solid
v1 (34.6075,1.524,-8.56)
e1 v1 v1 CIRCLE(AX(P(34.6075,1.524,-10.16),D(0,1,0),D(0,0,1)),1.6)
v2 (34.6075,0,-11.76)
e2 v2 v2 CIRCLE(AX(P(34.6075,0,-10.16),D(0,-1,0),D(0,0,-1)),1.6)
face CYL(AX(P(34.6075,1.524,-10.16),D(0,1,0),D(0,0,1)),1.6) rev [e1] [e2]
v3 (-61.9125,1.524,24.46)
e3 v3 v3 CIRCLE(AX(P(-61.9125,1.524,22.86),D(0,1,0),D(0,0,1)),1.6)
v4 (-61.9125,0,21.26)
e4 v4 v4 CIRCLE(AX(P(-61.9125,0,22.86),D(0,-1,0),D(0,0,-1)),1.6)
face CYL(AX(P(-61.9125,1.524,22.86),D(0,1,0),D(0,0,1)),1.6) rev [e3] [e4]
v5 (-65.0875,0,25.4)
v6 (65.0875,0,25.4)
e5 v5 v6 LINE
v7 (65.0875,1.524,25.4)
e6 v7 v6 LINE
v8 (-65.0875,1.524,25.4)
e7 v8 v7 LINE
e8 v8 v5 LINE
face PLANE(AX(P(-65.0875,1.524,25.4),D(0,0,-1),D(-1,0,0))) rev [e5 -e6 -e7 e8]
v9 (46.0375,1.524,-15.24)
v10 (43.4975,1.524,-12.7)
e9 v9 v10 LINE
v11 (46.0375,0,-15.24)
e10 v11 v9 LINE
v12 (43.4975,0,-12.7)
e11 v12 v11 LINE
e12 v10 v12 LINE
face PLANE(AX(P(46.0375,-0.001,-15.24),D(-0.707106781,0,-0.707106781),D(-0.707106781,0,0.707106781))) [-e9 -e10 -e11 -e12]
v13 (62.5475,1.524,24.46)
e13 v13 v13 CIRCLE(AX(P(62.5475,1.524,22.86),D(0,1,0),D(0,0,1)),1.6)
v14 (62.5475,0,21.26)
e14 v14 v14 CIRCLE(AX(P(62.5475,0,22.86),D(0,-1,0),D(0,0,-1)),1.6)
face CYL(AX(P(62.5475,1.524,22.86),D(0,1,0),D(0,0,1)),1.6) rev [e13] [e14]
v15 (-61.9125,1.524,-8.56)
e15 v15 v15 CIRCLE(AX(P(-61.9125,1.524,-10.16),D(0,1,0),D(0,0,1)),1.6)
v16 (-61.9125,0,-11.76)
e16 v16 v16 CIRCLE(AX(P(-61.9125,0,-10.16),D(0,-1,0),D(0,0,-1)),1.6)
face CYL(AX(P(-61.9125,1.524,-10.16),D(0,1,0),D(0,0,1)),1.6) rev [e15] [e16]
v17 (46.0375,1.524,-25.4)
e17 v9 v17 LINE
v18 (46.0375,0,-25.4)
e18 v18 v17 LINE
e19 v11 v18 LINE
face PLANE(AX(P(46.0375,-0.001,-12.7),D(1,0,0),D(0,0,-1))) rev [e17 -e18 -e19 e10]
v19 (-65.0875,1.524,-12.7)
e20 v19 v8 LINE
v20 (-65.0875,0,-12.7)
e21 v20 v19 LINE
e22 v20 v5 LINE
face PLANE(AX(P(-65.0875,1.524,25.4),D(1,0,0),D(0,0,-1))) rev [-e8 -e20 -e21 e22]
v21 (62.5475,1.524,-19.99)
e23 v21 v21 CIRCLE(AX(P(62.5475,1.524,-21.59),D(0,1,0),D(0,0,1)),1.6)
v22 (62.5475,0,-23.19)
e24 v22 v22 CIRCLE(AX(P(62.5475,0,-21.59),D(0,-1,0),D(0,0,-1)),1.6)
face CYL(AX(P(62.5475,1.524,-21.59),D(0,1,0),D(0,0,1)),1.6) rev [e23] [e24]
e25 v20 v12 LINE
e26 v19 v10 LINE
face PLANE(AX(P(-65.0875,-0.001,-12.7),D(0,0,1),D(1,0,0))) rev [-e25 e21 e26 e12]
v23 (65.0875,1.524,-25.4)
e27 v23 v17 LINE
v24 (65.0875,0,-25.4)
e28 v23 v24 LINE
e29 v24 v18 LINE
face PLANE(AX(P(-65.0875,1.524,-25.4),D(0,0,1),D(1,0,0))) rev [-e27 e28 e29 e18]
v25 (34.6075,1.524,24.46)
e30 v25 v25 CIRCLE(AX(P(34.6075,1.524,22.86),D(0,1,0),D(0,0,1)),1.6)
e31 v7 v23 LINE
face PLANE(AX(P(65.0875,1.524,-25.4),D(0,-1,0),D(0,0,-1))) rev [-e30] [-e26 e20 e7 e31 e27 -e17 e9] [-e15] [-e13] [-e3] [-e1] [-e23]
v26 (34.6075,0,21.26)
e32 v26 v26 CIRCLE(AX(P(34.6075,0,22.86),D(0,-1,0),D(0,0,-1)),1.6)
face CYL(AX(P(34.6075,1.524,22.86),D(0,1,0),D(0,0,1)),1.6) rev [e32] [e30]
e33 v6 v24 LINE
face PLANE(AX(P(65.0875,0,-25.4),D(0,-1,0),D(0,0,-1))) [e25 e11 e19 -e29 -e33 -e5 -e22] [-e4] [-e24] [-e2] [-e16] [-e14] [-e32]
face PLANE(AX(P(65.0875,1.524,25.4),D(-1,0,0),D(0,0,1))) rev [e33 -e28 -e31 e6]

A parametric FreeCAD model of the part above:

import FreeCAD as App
import Part
import Sketcher
from FreeCAD import Vector
Q = App.Units.Quantity


def edges_at(feature, points):
    """Names of the edges that pass closest to the given points."""
    edges = feature.Shape.Edges
    near = lambda p: min(range(len(edges)), key=lambda i: edges[i].distToShape(Part.Vertex(*p))[0])
    return sorted({f"Edge{near(p) + 1}" for p in points})


def add_polygon(sketch, points):
    """Adds a closed chain of lines whose ends are joined by coincident constraints."""
    first, n = sketch.GeometryCount, len(points)
    for a, b in zip(points, points[1:] + points[:1]):
        sketch.addGeometry(Part.LineSegment(App.Vector(*a, 0), App.Vector(*b, 0)), False)
    for i in range(n):
        sketch.addConstraint(Sketcher.Constraint("Coincident", first + i, 2, first + (i + 1) % n, 1))

doc = App.newDocument("Part")
params = doc.addObject("Spreadsheet::Sheet", "Params")
for row, (alias, value) in enumerate([
    ("sketch1_height", "2 in"),
    ("sketch1_width", "5.125 in"),
    ("pad1_length", "0.06 in"),
    ("sketch2_height", "0.5 in"),
    ("sketch2_width", "4.375 in"),
    ("chamfer_size", "0.1 in"),
    ("hole_diameter", "3.2 mm"),
], start=1):
    params.set(f"A{row}", alias)
    params.set(f"B{row}", "=" + value)
    params.setAlias(f"B{row}", alias)

body = doc.addObject("PartDesign::Body", "Body")

# Sketch on XZ plane
sketch1 = body.newObject("Sketcher::SketchObject", "Sketch")
sketch1.AttachmentSupport = (doc.getObject("XZ_Plane"), [""])
sketch1.MapMode = "FlatFace"
add_polygon(sketch1, [(-65.0875, -25.4), (-65.0875, 25.4), (65.0875, 25.4), (65.0875, -25.4)])  # lines 0-3
sketch1.addConstraint([
    Sketcher.Constraint("Vertical", 0),
    Sketcher.Constraint("Horizontal", 1),
    Sketcher.Constraint("Vertical", 2),
    Sketcher.Constraint("Horizontal", 3),
    Sketcher.Constraint("Symmetric", 0, 2, 2, 2, -1, 1),
    Sketcher.Constraint("DistanceY", 0, 1, 0, 2, Q("2 in")),
    Sketcher.Constraint("DistanceX", 1, 1, 1, 2, Q("5.125 in")),
])
sketch1.setExpression("Constraints[9]", "Params.sketch1_height")
sketch1.setExpression("Constraints[10]", "Params.sketch1_width")
pad1 = body.newObject("PartDesign::Pad", "Pad")
pad1.Profile = sketch1
pad1.setExpression("Length", "Params.pad1_length")
pad1.Reversed = True

# Sketch on XZ plane
sketch2 = body.newObject("Sketcher::SketchObject", "Sketch001")
sketch2.AttachmentSupport = (doc.getObject("XZ_Plane"), [""])
sketch2.MapMode = "FlatFace"
sketch2.AttachmentOffset = App.Placement(Vector(0, 0, -0.06 * 25.4), App.Rotation())
add_polygon(sketch2, [(-65.0875, -25.4), (-65.0875, -12.7), (46.0375, -12.7), (46.0375, -25.4)])  # lines 0-3
sketch2.addConstraint([
    Sketcher.Constraint("Vertical", 0),
    Sketcher.Constraint("Horizontal", 1),
    Sketcher.Constraint("Vertical", 2),
    Sketcher.Constraint("Horizontal", 3),
    Sketcher.Constraint("DistanceY", 0, 1, 0, 2, Q("0.5 in")),
    Sketcher.Constraint("DistanceY", 2, 2, -1, 1, Q("1 in")),
    Sketcher.Constraint("DistanceX", 1, 1, 1, 2, Q("4.375 in")),
    Sketcher.Constraint("DistanceX", 0, 2, -1, 1, Q("2.5625 in")),
])
sketch2.setExpression("Constraints[8]", "Params.sketch2_height")
sketch2.setExpression("Constraints[10]", "Params.sketch2_width")
pocket1 = body.newObject("PartDesign::Pocket", "Pocket")
pocket1.Profile = sketch2
pocket1.Type = "UpToFirst"
pocket1.Reversed = True
doc.recompute()

chamfer = body.newObject("PartDesign::Chamfer", "Chamfer")
chamfer.Base = (pocket1, edges_at(pocket1, [(46.038, 0.762, -12.7)]))
chamfer.setExpression("Size", "Params.chamfer_size")

# Sketch on XZ plane
sketch3 = body.newObject("Sketcher::SketchObject", "Sketch002")
sketch3.AttachmentSupport = (doc.getObject("XZ_Plane"), [""])
sketch3.MapMode = "FlatFace"
sketch3.AttachmentOffset = App.Placement(Vector(0, 0, -0.06 * 25.4), App.Rotation())
sketch3.addGeometry([
    Part.Circle(Vector(62.5475, 22.86, 0), Vector(0, 0, 1), 1.6),  # 0
    Part.Circle(Vector(62.5475, -21.59, 0), Vector(0, 0, 1), 1.6),  # 1
    Part.Circle(Vector(34.6075, 22.86, 0), Vector(0, 0, 1), 1.6),  # 2
    Part.Circle(Vector(34.6075, -10.16, 0), Vector(0, 0, 1), 1.6),  # 3
    Part.Circle(Vector(-61.9125, 22.86, 0), Vector(0, 0, 1), 1.6),  # 4
    Part.Circle(Vector(-61.9125, -10.16, 0), Vector(0, 0, 1), 1.6),  # 5
], False)
sketch3.addConstraint([
    Sketcher.Constraint("Equal", 0, 1),
    Sketcher.Constraint("Equal", 1, 2),
    Sketcher.Constraint("Equal", 2, 3),
    Sketcher.Constraint("Equal", 3, 4),
    Sketcher.Constraint("Equal", 4, 5),
    Sketcher.Constraint("Horizontal", 0, 3, 2, 3),
    Sketcher.Constraint("Horizontal", 2, 3, 4, 3),
    Sketcher.Constraint("Horizontal", 3, 3, 5, 3),
    Sketcher.Constraint("Vertical", 0, 3, 1, 3),
    Sketcher.Constraint("Vertical", 2, 3, 3, 3),
    Sketcher.Constraint("Vertical", 4, 3, 5, 3),
    Sketcher.Constraint("DistanceY", -1, 1, 0, 3, Q("0.9 in")),
    Sketcher.Constraint("DistanceY", 3, 3, -1, 1, Q("0.4 in")),
    Sketcher.Constraint("DistanceX", 2, 3, 0, 3, Q("1.1 in")),
    Sketcher.Constraint("DistanceX", 4, 3, 2, 3, Q("3.8 in")),
    Sketcher.Constraint("Diameter", 0, 3.2),
    Sketcher.Constraint("DistanceY", 1, 3, -1, 1, Q("0.85 in")),
    Sketcher.Constraint("DistanceX", 4, 3, -1, 1, Q("2.4375 in")),
])
doc.recompute()
hole = body.newObject("PartDesign::Hole", "Hole")
hole.Profile = sketch3
hole.ThreadType = "None"
hole.setExpression("Diameter", "Params.hole_diameter")
hole.DepthType = "ThroughAll"
hole.Reversed = True

doc.recompute()
